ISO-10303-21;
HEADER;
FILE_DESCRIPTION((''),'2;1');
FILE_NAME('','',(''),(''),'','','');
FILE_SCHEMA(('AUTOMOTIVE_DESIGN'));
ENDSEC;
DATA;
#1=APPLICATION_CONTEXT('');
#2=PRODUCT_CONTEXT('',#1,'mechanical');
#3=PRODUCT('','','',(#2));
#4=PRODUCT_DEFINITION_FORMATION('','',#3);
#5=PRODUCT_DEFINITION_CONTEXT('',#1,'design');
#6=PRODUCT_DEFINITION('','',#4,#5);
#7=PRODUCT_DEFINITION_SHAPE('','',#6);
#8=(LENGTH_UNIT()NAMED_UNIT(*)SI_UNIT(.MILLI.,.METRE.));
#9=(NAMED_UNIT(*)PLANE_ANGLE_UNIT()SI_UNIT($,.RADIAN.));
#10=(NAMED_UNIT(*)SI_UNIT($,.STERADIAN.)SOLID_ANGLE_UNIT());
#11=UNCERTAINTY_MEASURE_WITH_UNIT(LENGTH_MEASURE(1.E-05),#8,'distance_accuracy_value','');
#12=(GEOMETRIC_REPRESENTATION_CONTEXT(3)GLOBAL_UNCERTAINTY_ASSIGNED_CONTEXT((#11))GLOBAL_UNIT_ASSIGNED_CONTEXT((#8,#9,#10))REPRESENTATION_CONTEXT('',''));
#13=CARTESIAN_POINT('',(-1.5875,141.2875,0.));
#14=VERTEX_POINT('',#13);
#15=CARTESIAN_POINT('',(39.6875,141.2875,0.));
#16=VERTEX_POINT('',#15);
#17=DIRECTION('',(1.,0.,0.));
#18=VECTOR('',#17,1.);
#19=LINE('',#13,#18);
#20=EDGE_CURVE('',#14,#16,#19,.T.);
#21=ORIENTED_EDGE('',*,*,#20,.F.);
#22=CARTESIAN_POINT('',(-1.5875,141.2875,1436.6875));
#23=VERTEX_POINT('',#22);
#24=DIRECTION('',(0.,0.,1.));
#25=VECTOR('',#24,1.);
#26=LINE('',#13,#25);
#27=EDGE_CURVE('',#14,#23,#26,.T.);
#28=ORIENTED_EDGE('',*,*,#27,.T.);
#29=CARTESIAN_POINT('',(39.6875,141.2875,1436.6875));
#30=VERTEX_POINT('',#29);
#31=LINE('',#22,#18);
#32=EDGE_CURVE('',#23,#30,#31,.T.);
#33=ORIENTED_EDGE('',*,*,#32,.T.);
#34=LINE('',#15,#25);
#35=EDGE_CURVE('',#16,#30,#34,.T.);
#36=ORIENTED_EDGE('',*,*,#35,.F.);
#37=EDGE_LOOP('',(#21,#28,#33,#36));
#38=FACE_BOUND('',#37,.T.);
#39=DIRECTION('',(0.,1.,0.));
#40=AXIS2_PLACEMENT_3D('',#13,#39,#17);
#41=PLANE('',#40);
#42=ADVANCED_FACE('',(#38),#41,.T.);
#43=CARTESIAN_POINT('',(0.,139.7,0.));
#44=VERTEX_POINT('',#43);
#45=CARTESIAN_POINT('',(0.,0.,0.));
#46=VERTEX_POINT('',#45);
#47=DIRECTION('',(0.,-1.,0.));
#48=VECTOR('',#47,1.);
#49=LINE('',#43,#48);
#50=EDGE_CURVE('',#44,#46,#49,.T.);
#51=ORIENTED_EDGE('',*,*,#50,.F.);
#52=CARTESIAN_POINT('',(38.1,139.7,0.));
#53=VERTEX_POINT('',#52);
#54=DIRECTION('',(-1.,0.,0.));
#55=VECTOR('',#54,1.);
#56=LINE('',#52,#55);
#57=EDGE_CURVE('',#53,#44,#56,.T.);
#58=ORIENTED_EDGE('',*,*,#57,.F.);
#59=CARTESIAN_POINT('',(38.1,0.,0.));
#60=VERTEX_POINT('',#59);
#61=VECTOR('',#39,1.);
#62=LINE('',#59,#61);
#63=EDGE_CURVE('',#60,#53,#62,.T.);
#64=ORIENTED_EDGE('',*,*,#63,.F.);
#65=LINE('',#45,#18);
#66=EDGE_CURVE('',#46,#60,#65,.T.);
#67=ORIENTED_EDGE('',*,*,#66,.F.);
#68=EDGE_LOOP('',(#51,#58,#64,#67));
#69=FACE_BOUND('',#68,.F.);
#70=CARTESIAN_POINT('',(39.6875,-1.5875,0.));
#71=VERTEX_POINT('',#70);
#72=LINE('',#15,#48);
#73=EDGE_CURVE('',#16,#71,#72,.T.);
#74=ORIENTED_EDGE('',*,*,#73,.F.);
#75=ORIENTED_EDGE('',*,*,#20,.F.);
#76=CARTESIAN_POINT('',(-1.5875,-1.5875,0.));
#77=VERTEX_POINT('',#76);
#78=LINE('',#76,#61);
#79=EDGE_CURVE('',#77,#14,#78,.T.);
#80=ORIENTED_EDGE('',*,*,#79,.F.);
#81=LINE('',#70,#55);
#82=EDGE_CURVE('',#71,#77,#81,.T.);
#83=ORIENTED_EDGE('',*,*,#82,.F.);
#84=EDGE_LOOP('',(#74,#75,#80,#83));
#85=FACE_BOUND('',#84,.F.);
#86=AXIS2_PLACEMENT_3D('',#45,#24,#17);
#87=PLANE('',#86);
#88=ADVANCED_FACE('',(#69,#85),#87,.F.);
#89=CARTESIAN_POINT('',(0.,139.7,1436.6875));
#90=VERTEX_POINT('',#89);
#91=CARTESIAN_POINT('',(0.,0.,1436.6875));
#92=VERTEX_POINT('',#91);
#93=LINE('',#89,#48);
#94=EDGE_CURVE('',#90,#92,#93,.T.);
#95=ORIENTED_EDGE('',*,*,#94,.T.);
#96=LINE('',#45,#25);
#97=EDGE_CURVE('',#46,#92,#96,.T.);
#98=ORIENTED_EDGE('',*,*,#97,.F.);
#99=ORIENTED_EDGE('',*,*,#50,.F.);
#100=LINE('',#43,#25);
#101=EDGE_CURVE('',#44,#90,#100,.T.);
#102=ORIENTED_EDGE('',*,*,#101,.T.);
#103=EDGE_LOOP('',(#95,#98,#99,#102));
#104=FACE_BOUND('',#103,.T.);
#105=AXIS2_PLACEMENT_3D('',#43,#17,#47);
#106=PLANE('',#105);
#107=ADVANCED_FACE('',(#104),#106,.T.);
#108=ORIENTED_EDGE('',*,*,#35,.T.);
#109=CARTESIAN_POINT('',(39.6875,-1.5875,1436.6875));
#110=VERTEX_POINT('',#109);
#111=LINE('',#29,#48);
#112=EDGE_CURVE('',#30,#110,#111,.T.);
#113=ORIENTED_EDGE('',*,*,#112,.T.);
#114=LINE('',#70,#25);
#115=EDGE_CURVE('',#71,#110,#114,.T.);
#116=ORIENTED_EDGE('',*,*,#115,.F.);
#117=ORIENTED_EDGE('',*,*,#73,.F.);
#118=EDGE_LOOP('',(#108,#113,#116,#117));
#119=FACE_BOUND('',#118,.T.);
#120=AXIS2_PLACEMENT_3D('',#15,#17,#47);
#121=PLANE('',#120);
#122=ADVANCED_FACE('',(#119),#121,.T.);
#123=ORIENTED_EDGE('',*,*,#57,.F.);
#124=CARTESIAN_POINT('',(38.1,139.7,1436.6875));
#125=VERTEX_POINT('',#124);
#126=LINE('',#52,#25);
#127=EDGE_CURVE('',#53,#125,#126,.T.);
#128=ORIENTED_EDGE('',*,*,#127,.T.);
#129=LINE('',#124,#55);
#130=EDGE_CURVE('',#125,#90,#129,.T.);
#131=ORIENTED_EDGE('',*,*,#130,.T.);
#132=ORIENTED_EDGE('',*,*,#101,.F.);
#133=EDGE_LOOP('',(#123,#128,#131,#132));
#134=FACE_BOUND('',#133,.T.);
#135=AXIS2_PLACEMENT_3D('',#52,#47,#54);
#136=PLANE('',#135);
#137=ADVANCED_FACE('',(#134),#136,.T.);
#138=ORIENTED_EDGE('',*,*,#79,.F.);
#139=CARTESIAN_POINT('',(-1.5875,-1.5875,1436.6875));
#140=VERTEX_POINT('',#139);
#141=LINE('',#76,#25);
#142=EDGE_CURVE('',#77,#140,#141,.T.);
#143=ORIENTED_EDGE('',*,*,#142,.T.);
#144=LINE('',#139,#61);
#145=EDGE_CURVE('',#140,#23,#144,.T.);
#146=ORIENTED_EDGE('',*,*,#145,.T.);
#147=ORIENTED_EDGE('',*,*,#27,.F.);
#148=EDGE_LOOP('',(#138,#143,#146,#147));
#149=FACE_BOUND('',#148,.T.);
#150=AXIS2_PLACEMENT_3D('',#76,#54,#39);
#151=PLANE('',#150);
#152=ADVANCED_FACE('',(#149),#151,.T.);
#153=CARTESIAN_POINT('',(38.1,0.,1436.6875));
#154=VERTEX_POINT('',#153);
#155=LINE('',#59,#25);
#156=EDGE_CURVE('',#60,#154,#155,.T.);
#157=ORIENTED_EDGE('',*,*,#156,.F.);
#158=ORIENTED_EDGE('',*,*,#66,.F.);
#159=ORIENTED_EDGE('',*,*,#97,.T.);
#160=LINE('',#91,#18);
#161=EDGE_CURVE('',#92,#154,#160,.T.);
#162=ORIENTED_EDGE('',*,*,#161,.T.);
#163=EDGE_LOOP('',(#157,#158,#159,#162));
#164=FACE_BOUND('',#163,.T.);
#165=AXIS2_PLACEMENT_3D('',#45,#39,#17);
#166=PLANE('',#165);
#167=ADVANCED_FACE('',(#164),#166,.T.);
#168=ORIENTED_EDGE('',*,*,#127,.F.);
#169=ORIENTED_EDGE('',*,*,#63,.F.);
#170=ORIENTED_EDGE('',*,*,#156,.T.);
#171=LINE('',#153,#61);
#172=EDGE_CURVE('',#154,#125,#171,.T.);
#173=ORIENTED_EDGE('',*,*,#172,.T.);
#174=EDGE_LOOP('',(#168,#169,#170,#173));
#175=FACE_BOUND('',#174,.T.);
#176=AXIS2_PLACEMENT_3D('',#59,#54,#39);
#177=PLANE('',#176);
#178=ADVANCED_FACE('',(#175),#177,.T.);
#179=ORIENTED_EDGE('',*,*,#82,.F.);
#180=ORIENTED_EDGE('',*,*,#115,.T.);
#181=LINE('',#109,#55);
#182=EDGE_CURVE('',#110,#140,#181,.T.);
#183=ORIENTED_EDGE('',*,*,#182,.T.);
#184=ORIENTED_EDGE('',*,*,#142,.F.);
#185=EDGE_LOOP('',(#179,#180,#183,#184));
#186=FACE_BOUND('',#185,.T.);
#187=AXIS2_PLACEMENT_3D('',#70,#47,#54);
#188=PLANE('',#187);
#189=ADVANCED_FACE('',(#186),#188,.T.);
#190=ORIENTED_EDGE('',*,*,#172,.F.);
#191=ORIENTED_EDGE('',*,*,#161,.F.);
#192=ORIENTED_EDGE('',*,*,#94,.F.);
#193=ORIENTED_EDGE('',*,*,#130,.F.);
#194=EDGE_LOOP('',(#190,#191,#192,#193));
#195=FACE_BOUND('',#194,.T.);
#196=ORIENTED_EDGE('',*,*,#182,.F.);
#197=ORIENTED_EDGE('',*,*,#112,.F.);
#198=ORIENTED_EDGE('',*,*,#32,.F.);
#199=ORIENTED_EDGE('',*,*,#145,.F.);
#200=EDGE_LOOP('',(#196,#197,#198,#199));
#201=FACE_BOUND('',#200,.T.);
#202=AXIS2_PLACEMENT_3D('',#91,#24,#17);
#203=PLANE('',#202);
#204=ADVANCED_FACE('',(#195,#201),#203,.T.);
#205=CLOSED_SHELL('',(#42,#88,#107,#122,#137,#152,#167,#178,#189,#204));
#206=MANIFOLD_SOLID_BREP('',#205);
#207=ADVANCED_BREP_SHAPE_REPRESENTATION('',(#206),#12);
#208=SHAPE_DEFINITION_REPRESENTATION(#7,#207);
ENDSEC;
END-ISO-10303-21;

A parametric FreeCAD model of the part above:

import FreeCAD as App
import Part
import Sketcher
Q = App.Units.Quantity


def add_polygon(sketch, points):
    """Adds a closed chain of lines whose ends are joined by coincident constraints."""
    first, n = sketch.GeometryCount, len(points)
    for a, b in zip(points, points[1:] + points[:1]):
        sketch.addGeometry(Part.LineSegment(App.Vector(*a, 0), App.Vector(*b, 0)), False)
    for i in range(n):
        sketch.addConstraint(Sketcher.Constraint("Coincident", first + i, 2, first + (i + 1) % n, 1))

doc = App.newDocument("Part")
params = doc.addObject("Spreadsheet::Sheet", "Params")
for row, (alias, value) in enumerate([
    ("sketch1_width", "1.5 in"),
    ("sketch1_height", "5.5 in"),
    ("pad1_length", "56.5625 in"),
], start=1):
    params.set(f"A{row}", alias)
    params.set(f"B{row}", "=" + value)
    params.setAlias(f"B{row}", alias)

body = doc.addObject("PartDesign::Body", "Body")

# Sketch on XY plane
sketch1 = body.newObject("Sketcher::SketchObject", "Sketch")
sketch1.AttachmentSupport = (doc.getObject("XY_Plane"), [""])
sketch1.MapMode = "FlatFace"
add_polygon(sketch1, [(39.6875, 141.2875), (-1.5875, 141.2875), (-1.5875, -1.5875), (39.6875, -1.5875)])  # lines 0-3
add_polygon(sketch1, [(38.1, 0), (0, 0), (0, 139.7), (38.1, 139.7)])  # lines 4-7
sketch1.addConstraint(Sketcher.Constraint("Horizontal", 0))
sketch1.addConstraint(Sketcher.Constraint("Vertical", 1))
sketch1.addConstraint(Sketcher.Constraint("Horizontal", 2))
sketch1.addConstraint(Sketcher.Constraint("Vertical", 3))
sketch1.addConstraint(Sketcher.Constraint("Horizontal", 4))
sketch1.addConstraint(Sketcher.Constraint("Vertical", 5))
sketch1.addConstraint(Sketcher.Constraint("Horizontal", 6))
sketch1.addConstraint(Sketcher.Constraint("Vertical", 7))
sketch1.addConstraint(Sketcher.Constraint("Coincident", 4, 2, -1, 1))
sketch1.addConstraint(Sketcher.Constraint("DistanceX", 4, 2, 4, 1, Q("1.5 in")))
sketch1.addConstraint(Sketcher.Constraint("DistanceY", 5, 1, 5, 2, Q("5.5 in")))
sketch1.addConstraint(Sketcher.Constraint("DistanceX", 0, 2, -1, 1, Q("0.0625 in")))
sketch1.addConstraint(Sketcher.Constraint("DistanceY", 1, 2, -1, 1, Q("0.0625 in")))
sketch1.addConstraint(Sketcher.Constraint("DistanceY", 5, 2, 0, 2, Q("0.0625 in")))
sketch1.addConstraint(Sketcher.Constraint("DistanceX", 6, 2, 3, 2, Q("0.0625 in")))
sketch1.setExpression("Constraints[17]", "Params.sketch1_width")
sketch1.setExpression("Constraints[18]", "Params.sketch1_height")
pad1 = body.newObject("PartDesign::Pad", "Pad")
pad1.Profile = sketch1
pad1.setExpression("Length", "Params.pad1_length")

doc.recompute()
